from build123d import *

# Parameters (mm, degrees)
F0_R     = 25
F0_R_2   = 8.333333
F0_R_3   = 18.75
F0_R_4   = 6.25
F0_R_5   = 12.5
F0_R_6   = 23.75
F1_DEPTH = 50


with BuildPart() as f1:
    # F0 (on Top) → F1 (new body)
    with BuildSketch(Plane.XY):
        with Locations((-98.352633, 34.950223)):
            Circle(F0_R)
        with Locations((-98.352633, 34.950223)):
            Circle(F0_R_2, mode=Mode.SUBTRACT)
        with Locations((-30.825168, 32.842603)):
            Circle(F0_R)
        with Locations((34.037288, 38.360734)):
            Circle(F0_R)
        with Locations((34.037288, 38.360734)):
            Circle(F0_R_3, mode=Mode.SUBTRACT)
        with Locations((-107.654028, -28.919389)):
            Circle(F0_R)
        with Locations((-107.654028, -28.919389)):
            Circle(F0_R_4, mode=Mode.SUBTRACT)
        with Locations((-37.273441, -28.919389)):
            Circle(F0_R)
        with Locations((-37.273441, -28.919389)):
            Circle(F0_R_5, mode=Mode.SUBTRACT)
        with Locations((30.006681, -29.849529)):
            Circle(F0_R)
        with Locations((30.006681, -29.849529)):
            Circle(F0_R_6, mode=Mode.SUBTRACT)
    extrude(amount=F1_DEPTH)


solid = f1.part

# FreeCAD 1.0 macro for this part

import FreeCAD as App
import Part
import Sketcher

V = App.Vector
Q = App.Units.Quantity

doc = App.newDocument("Part")
body = doc.addObject("PartDesign::Body", "Body")
body.AllowCompound = True

# Sketch on XY plane
sketch1 = body.newObject("Sketcher::SketchObject", "Sketch")
sketch1.AttachmentSupport = (doc.getObject("XY_Plane"), [""])
sketch1.MapMode = "FlatFace"
sketch1.addGeometry([
    Part.Circle(V(-98, 35, 0), V(0, 0, 1), 25),  # 0
    Part.Circle(V(-98, 35, 0), V(0, 0, 1), 8),  # 1
    Part.Circle(V(-31, 33, 0), V(0, 0, 1), 25),  # 2
    Part.Circle(V(34, 38, 0), V(0, 0, 1), 25),  # 3
    Part.Circle(V(34, 38, 0), V(0, 0, 1), 19),  # 4
    Part.Circle(V(-108, -29, 0), V(0, 0, 1), 25),  # 5
    Part.Circle(V(-108, -29, 0), V(0, 0, 1), 6),  # 6
    Part.Circle(V(-37, -29, 0), V(0, 0, 1), 25),  # 7
    Part.Circle(V(-37, -29, 0), V(0, 0, 1), 12),  # 8
    Part.Circle(V(30, -30, 0), V(0, 0, 1), 25),  # 9
    Part.Circle(V(30, -30, 0), V(0, 0, 1), 24),  # 10
], False)
sketch1.addConstraint([
    Sketcher.Constraint("Coincident", 1, 3, 0, 3),
    Sketcher.Constraint("Coincident", 4, 3, 3, 3),
    Sketcher.Constraint("Coincident", 6, 3, 5, 3),
    Sketcher.Constraint("Coincident", 8, 3, 7, 3),
    Sketcher.Constraint("Coincident", 10, 3, 9, 3),
    Sketcher.Constraint("Equal", 0, 2),
    Sketcher.Constraint("Equal", 2, 3),
    Sketcher.Constraint("Equal", 3, 5),
    Sketcher.Constraint("Equal", 5, 7),
    Sketcher.Constraint("Equal", 7, 9),
    Sketcher.Constraint("Horizontal", 6, 3, 7, 3),
    Sketcher.Constraint("Diameter", 0, Q("50 mm")),
    Sketcher.Constraint("Diameter", 8, Q("25 mm")),
    Sketcher.Constraint("Diameter", 4, Q("37.5 mm")),
    Sketcher.Constraint("Diameter", 6, Q("12.5 mm")),
    Sketcher.Constraint("Diameter", 10, Q("47.5 mm")),
    Sketcher.Constraint("Diameter", 1, Q("16.666666 mm")),
    Sketcher.Constraint("DistanceX", 2, 3, -1, 1, Q("30.825168 mm")),
    Sketcher.Constraint("DistanceY", 5, 3, -1, 1, Q("28.919389 mm")),
    Sketcher.Constraint("DistanceX", 7, 3, -1, 1, Q("37.273441 mm")),
    Sketcher.Constraint("DistanceX", -1, 1, 9, 3, Q("30.006681 mm")),
    Sketcher.Constraint("DistanceY", 9, 3, -1, 1, Q("29.849529 mm")),
    Sketcher.Constraint("DistanceY", 2, 3, 0, 3, Q("2.10762 mm")),
    Sketcher.Constraint("DistanceY", 2, 3, 3, 3, Q("5.518131 mm")),
    Sketcher.Constraint("DistanceX", 0, 3, 3, 3, Q("132.389921 mm")),
    Sketcher.Constraint("DistanceX", 5, 3, 2, 3, Q("76.82886 mm")),
    Sketcher.Constraint("DistanceY", 5, 3, 2, 3, Q("61.761992 mm")),
    Sketcher.Constraint("DistanceX", 0, 3, -1, 1, Q("98.352633 mm")),
])
pad1 = body.newObject("PartDesign::Pad", "Pad")
pad1.Profile = sketch1
pad1.Length = 50

doc.recompute()
